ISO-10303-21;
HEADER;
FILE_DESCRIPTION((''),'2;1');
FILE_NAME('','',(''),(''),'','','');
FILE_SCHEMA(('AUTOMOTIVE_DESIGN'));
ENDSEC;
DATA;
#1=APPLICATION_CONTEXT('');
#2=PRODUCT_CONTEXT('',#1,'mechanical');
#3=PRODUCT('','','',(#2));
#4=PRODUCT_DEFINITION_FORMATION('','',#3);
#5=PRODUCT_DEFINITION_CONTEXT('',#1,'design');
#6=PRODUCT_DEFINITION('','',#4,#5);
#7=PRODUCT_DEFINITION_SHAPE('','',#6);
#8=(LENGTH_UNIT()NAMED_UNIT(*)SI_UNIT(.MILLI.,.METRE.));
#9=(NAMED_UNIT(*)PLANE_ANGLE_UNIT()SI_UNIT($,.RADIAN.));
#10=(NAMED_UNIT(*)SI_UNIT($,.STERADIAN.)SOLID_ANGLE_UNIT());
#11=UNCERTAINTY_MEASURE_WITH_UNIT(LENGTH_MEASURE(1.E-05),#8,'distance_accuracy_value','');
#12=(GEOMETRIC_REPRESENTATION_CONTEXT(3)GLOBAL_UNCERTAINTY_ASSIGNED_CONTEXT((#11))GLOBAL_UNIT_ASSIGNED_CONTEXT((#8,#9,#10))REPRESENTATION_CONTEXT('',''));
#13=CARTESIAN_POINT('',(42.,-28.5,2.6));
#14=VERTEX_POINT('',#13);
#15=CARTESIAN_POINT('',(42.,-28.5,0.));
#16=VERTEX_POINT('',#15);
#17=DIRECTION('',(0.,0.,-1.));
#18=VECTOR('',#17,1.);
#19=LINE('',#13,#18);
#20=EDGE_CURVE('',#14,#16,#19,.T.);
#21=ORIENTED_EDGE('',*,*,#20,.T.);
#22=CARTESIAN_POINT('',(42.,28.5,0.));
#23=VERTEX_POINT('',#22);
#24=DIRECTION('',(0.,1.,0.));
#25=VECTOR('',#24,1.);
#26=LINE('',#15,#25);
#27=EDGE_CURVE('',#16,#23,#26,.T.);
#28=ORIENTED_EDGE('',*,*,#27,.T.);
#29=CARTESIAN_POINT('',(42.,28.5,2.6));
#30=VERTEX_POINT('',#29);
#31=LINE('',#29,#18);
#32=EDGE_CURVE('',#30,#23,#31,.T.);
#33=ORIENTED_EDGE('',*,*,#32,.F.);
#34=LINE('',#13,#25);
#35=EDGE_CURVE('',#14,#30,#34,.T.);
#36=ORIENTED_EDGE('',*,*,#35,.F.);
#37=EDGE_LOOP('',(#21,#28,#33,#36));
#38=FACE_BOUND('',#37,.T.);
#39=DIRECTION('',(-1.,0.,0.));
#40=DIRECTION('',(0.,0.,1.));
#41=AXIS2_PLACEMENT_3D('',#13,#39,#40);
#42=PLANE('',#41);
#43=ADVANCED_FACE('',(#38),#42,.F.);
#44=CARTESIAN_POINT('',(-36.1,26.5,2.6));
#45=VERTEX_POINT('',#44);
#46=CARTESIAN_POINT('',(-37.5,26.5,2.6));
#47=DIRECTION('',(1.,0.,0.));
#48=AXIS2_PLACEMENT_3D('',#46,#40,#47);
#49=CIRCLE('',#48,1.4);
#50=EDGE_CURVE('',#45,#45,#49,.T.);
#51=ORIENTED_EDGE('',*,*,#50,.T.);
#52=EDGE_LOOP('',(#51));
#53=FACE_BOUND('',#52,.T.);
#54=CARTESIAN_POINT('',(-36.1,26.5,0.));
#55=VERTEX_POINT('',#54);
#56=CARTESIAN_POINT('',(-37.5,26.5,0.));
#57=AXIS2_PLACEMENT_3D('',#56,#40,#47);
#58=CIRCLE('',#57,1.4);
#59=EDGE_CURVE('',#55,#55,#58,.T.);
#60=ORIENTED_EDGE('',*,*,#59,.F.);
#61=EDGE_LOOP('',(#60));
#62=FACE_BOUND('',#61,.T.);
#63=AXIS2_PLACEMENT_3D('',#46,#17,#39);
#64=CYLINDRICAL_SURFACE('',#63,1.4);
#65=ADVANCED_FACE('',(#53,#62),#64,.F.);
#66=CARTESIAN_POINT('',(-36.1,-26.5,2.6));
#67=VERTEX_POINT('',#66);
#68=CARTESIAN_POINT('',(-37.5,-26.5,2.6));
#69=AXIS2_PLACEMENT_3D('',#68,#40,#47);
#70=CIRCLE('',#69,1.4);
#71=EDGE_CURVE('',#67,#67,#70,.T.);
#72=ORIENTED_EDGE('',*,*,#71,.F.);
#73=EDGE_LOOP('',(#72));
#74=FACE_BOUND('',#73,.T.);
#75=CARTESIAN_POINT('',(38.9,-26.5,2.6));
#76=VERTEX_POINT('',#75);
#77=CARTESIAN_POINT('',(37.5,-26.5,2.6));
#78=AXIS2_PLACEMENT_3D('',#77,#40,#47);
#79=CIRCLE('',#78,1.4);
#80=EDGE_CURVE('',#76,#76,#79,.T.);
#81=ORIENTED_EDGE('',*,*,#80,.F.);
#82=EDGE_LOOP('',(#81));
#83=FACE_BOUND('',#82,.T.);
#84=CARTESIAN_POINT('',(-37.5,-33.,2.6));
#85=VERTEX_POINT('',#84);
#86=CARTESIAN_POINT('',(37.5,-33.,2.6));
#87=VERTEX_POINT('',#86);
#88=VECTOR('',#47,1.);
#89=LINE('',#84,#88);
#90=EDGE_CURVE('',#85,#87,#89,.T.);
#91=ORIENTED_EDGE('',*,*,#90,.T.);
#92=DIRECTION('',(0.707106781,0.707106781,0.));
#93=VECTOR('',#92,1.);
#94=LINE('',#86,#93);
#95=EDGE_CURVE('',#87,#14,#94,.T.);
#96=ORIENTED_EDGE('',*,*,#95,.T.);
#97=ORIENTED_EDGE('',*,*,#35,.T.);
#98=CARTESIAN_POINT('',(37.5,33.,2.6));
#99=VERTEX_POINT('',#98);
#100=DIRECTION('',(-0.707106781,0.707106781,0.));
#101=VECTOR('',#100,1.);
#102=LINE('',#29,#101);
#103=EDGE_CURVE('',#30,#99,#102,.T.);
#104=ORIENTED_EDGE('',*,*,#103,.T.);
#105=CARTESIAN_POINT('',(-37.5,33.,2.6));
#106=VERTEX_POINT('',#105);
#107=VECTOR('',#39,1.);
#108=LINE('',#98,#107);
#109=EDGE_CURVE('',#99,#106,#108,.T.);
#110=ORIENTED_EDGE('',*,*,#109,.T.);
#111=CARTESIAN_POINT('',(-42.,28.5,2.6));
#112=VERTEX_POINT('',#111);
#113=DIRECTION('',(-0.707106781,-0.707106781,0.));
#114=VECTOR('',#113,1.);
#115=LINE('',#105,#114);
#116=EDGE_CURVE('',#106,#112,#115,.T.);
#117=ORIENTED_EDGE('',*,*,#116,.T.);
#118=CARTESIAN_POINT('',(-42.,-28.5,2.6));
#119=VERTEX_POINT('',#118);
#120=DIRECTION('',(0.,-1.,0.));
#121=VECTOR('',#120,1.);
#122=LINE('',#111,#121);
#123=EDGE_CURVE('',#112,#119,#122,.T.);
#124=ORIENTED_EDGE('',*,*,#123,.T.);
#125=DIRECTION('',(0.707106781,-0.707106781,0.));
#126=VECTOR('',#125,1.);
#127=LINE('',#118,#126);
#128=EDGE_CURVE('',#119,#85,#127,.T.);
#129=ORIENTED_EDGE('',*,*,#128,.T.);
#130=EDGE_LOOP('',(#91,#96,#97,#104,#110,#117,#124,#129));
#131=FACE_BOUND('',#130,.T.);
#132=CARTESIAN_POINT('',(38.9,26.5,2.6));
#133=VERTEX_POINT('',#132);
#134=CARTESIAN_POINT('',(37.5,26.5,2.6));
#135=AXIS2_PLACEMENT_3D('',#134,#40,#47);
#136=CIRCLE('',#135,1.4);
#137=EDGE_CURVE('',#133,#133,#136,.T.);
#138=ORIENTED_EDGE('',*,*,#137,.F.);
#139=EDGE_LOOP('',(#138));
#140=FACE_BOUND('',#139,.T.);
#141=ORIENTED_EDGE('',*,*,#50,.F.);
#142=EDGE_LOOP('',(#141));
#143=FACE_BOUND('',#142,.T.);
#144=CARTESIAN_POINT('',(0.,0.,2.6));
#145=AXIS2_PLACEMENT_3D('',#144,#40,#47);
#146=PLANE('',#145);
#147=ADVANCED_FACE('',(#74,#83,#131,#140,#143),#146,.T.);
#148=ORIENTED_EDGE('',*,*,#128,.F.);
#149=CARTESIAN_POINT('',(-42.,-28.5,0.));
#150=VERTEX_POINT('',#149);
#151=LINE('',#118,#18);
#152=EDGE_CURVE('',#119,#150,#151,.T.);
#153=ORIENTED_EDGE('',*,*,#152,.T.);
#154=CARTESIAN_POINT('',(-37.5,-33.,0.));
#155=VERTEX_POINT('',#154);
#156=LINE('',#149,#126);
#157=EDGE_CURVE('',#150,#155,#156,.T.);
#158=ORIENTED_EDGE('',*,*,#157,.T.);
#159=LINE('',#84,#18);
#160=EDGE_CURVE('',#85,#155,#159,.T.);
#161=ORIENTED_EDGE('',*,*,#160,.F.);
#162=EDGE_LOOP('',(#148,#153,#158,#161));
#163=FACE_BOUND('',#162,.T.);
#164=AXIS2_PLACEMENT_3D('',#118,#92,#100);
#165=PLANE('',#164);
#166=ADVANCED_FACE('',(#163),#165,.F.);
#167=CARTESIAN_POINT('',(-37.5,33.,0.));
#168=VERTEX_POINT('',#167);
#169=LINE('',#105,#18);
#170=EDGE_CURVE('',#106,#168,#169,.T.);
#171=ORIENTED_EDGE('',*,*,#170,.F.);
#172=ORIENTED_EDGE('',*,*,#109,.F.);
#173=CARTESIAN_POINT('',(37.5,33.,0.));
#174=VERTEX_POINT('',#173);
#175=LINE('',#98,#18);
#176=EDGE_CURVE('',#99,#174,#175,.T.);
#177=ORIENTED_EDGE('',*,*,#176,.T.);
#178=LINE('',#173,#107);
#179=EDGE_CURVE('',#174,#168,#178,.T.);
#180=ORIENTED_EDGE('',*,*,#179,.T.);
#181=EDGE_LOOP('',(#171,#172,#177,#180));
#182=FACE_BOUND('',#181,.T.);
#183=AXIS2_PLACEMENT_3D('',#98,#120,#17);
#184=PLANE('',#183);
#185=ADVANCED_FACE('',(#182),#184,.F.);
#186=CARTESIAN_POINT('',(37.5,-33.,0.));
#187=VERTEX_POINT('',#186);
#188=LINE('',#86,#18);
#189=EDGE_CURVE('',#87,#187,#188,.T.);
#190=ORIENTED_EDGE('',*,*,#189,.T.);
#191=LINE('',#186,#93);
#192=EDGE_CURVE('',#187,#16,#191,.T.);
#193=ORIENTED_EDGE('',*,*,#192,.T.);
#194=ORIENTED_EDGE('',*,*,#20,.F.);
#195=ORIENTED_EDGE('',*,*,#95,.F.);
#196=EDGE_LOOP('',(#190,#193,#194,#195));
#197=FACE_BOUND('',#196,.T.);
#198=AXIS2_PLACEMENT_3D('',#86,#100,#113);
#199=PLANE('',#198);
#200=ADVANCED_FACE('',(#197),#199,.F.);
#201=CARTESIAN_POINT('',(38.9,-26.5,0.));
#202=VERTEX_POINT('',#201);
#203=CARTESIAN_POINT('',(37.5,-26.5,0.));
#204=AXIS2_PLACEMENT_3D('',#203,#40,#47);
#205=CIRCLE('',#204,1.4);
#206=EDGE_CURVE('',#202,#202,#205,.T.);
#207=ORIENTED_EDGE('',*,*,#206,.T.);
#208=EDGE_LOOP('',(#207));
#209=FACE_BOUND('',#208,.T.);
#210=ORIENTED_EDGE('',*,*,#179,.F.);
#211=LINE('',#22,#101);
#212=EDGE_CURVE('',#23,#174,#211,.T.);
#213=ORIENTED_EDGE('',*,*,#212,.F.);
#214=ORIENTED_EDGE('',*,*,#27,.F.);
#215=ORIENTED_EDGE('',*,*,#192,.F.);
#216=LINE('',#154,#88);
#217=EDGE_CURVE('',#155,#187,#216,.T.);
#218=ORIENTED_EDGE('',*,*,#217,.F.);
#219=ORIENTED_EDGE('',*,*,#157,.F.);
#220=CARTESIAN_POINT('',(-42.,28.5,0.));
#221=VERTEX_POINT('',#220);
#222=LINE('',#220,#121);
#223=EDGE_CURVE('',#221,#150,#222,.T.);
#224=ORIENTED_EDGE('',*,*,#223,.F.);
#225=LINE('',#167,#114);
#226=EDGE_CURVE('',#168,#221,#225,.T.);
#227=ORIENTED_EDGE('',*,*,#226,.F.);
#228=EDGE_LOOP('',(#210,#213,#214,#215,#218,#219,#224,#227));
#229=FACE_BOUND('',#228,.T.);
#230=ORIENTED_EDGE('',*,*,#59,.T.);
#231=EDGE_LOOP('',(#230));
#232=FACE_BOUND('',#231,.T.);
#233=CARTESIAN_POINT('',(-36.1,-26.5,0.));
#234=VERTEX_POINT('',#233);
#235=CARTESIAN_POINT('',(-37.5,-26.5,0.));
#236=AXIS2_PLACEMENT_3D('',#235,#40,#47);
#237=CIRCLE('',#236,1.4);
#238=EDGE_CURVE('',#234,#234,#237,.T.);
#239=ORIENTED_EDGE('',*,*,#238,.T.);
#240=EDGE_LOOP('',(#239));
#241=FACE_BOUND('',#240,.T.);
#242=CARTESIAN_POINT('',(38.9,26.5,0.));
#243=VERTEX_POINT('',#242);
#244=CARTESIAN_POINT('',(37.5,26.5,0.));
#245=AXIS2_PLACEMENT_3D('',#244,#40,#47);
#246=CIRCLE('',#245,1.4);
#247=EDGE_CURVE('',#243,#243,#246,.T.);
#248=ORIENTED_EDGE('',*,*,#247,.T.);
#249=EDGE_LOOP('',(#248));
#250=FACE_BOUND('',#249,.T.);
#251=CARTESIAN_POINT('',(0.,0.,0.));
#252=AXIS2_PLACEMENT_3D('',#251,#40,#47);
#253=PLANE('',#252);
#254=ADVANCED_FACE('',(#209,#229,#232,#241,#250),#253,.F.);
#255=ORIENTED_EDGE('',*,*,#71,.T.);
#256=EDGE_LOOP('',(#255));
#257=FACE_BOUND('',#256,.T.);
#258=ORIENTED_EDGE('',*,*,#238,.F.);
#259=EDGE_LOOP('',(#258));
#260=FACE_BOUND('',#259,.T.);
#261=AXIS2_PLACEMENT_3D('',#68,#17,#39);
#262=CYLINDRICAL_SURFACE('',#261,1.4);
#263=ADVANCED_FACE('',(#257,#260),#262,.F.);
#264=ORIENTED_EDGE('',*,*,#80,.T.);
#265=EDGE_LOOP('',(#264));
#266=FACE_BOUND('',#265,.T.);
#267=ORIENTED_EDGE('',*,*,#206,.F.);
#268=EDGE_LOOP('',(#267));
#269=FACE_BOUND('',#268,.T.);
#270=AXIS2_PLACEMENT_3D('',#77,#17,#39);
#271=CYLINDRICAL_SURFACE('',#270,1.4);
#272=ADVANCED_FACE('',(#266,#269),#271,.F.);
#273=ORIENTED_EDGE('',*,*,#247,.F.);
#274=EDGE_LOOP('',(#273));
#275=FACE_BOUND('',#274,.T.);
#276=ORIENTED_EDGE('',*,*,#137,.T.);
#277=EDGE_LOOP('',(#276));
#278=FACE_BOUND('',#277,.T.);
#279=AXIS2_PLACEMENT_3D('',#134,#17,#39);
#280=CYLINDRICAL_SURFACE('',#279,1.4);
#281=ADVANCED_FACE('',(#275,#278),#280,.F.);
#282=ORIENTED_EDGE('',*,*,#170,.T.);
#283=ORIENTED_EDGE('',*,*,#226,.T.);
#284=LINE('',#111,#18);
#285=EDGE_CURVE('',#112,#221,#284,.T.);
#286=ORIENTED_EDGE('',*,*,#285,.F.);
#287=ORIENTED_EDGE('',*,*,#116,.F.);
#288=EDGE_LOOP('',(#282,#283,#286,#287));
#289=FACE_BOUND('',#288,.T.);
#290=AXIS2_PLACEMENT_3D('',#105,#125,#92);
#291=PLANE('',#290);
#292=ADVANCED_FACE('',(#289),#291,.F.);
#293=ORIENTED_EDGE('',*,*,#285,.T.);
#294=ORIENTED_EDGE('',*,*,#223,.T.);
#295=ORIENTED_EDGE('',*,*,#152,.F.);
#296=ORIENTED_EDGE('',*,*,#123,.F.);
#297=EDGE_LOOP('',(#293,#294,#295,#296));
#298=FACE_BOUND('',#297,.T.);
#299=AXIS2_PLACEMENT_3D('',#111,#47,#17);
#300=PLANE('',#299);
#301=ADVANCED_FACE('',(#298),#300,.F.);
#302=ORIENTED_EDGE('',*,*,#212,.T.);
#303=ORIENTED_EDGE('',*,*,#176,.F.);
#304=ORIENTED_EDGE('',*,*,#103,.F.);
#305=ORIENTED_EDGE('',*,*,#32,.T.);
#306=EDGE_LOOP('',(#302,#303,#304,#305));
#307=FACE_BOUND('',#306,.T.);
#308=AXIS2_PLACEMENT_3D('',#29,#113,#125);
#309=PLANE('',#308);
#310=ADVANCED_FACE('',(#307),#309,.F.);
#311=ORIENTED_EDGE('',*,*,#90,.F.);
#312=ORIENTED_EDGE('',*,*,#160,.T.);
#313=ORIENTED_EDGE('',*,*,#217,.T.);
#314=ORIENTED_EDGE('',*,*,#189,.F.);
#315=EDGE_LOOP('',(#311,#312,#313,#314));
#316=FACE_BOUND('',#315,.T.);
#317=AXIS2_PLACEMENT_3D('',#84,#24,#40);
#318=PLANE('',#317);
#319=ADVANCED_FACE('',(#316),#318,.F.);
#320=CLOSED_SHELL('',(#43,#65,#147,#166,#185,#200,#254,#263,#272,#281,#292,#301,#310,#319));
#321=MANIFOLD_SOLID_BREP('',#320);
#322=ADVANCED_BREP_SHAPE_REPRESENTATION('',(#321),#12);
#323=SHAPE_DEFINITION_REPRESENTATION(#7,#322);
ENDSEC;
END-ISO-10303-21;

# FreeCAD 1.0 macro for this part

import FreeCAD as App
import Part
import Sketcher

V = App.Vector


def add_polygon(sketch, points):
    """Adds a closed chain of lines whose ends are joined by coincident constraints."""
    first, n = sketch.GeometryCount, len(points)
    for a, b in zip(points, points[1:] + points[:1]):
        sketch.addGeometry(Part.LineSegment(App.Vector(*a, 0), App.Vector(*b, 0)), False)
    for i in range(n):
        sketch.addConstraint(Sketcher.Constraint("Coincident", first + i, 2, first + (i + 1) % n, 1))

doc = App.newDocument("Part")
params = doc.addObject("Spreadsheet::Sheet", "Params")
for row, (alias, value) in enumerate([
    ("sketch1_diameter", "2.8 mm"),
    ("sketch1_width", "75 mm"),
    ("sketch1_height", "57 mm"),
    ("pad1_length", "2.6 mm"),
], start=1):
    params.set(f"A{row}", alias)
    params.set(f"B{row}", "=" + value)
    params.setAlias(f"B{row}", alias)

body = doc.addObject("PartDesign::Body", "Body")

# Sketch on XY plane
sketch1 = body.newObject("Sketcher::SketchObject", "Sketch")
sketch1.AttachmentSupport = (doc.getObject("XY_Plane"), [""])
sketch1.MapMode = "FlatFace"
add_polygon(sketch1, [(-37.5, -33), (37.5, -33), (42, -28.5), (42, 28.5), (37.5, 33), (-37.5, 33), (-42, 28.5), (-42, -28.5)])  # lines 0-7
sketch1.addGeometry(Part.Circle(V(-37.5, -26.5, 0), V(0, 0, 1), 1.4), False)  # 8
sketch1.addGeometry(Part.Circle(V(37.5, -26.5, 0), V(0, 0, 1), 1.4), False)  # 9
sketch1.addGeometry(Part.Circle(V(-37.5, 26.5, 0), V(0, 0, 1), 1.4), False)  # 10
sketch1.addGeometry(Part.Circle(V(37.5, 26.5, 0), V(0, 0, 1), 1.4), False)  # 11
sketch1.addConstraint(Sketcher.Constraint("Horizontal", 0))
sketch1.addConstraint(Sketcher.Constraint("Vertical", 2))
sketch1.addConstraint(Sketcher.Constraint("Horizontal", 4))
sketch1.addConstraint(Sketcher.Constraint("Vertical", 6))
sketch1.addConstraint(Sketcher.Constraint("Equal", 8, 9))
sketch1.addConstraint(Sketcher.Constraint("Equal", 9, 10))
sketch1.addConstraint(Sketcher.Constraint("Equal", 10, 11))
sketch1.addConstraint(Sketcher.Constraint("Symmetric", 9, 3, 10, 3, -1, 1))
sketch1.addConstraint(Sketcher.Constraint("Symmetric", 8, 3, 11, 3, -1, 1))
sketch1.addConstraint(Sketcher.Constraint("Symmetric", 0, 2, 4, 2, -1, 1))
sketch1.addConstraint(Sketcher.Constraint("Symmetric", 1, 2, 5, 2, -1, 1))
sketch1.addConstraint(Sketcher.Constraint("Symmetric", 8, 3, 9, 3, -2))
sketch1.addConstraint(Sketcher.Constraint("Perpendicular", 1, 3))
sketch1.addConstraint(Sketcher.Constraint("Perpendicular", 5, 7))
sketch1.addConstraint(Sketcher.Constraint("Horizontal", 2, 2, 5, 2))
sketch1.addConstraint(Sketcher.Constraint("Horizontal", 1, 2, 6, 2))
sketch1.addConstraint(Sketcher.Constraint("Vertical", 11, 3, 0, 2))
sketch1.addConstraint(Sketcher.Constraint("Vertical", 0, 2, 3, 2))
sketch1.addConstraint(Sketcher.Constraint("Diameter", 8, 2.8))
sketch1.addConstraint(Sketcher.Constraint("DistanceX", 0, 1, 0, 2, 75.0))
sketch1.addConstraint(Sketcher.Constraint("DistanceY", 2, 1, 2, 2, 57.0))
sketch1.addConstraint(Sketcher.Constraint("DistanceY", 0, 2, -1, 1, 33.0))
sketch1.addConstraint(Sketcher.Constraint("DistanceY", 8, 3, 10, 3, 53.0))
sketch1.setExpression("Constraints[26]", "Params.sketch1_diameter")
sketch1.setExpression("Constraints[27]", "Params.sketch1_width")
sketch1.setExpression("Constraints[28]", "Params.sketch1_height")
pad1 = body.newObject("PartDesign::Pad", "Pad")
pad1.Profile = sketch1
pad1.setExpression("Length", "Params.pad1_length")

doc.recompute()
